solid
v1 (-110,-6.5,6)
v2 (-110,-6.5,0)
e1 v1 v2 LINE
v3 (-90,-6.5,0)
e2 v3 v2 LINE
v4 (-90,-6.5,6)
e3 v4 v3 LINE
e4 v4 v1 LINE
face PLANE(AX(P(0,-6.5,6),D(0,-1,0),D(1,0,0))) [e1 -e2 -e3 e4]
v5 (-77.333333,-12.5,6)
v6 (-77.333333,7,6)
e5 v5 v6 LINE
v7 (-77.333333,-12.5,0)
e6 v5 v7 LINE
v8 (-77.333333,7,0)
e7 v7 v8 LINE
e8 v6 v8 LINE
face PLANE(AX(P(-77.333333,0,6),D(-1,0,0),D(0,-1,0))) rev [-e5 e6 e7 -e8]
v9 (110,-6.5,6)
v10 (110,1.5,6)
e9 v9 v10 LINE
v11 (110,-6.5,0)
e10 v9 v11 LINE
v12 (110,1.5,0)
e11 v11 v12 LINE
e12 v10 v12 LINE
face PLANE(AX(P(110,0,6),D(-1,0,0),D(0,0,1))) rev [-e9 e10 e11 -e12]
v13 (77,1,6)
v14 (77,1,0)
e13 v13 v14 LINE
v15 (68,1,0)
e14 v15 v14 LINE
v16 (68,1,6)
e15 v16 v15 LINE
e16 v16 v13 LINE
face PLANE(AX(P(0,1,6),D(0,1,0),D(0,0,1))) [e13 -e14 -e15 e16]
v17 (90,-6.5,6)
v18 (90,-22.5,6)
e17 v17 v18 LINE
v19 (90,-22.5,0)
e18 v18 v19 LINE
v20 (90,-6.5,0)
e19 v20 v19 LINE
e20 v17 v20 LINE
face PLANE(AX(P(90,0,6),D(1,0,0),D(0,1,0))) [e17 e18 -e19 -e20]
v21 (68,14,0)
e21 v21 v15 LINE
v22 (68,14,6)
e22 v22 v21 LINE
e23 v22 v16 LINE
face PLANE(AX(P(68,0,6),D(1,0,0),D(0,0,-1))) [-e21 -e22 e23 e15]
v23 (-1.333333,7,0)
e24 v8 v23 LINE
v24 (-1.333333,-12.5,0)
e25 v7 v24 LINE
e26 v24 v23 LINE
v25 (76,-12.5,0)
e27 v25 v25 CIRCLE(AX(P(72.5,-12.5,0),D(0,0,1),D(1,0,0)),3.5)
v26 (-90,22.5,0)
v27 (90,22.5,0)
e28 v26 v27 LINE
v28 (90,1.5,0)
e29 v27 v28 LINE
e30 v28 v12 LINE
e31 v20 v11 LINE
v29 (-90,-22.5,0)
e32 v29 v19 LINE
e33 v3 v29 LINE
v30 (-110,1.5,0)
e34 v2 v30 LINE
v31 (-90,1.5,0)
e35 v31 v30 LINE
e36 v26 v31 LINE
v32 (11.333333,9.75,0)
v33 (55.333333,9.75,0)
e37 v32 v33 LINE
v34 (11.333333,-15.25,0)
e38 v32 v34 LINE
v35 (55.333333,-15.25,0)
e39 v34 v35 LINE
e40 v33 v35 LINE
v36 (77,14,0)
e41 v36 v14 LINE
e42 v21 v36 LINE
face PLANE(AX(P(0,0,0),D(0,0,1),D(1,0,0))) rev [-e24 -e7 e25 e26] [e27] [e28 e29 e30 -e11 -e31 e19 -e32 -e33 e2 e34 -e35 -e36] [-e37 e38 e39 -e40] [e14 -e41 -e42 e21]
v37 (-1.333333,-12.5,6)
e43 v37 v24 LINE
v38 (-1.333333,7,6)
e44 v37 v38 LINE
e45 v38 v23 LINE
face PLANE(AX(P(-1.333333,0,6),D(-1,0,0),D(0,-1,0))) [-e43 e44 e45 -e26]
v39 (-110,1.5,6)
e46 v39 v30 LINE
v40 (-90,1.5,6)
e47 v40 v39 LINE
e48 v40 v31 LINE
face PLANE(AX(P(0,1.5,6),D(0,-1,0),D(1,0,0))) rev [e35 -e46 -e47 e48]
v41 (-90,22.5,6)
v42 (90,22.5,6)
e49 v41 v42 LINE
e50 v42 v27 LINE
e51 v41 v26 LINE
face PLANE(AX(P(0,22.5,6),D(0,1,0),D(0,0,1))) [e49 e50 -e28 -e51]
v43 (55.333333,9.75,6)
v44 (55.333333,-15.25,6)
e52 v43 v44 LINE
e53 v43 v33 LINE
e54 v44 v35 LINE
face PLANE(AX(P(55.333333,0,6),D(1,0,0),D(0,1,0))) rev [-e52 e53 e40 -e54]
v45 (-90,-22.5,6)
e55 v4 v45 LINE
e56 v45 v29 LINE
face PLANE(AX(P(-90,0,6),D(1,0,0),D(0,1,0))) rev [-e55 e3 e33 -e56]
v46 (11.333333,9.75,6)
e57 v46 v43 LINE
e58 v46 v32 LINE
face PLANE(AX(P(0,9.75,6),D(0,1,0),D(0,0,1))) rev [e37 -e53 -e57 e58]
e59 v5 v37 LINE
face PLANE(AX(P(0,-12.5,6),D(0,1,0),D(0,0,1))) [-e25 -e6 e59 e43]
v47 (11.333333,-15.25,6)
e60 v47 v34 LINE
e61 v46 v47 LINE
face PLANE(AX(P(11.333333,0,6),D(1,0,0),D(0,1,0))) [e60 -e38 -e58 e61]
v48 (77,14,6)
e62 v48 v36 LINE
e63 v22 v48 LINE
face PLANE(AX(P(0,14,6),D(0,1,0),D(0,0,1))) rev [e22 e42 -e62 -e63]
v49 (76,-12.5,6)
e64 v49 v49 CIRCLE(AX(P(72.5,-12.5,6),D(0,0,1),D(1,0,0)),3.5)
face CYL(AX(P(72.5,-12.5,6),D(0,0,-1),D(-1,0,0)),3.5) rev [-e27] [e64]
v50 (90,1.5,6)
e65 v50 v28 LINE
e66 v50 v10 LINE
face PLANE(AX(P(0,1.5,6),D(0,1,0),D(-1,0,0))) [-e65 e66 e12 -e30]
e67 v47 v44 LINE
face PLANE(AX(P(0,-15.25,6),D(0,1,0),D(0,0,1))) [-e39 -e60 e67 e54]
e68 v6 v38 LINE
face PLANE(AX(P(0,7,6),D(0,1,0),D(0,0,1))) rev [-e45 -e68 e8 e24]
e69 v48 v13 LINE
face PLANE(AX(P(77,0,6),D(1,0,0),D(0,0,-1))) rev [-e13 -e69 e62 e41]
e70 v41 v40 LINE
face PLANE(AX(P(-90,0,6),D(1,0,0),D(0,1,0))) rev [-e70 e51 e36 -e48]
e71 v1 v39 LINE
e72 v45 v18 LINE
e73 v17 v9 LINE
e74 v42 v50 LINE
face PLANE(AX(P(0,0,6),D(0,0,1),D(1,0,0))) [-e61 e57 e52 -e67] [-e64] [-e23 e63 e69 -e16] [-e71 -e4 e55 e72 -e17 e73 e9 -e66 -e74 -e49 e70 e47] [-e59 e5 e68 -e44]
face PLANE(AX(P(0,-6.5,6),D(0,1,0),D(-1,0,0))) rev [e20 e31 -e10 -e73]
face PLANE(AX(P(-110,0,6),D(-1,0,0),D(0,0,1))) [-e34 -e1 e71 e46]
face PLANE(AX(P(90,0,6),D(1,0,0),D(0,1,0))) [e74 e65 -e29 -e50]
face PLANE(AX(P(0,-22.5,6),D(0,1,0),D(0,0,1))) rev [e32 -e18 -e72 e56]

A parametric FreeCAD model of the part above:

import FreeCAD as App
import Part
import Sketcher

V = App.Vector
Q = App.Units.Quantity


def add_polygon(sketch, points):
    """Adds a closed chain of lines whose ends are joined by coincident constraints."""
    first, n = sketch.GeometryCount, len(points)
    for a, b in zip(points, points[1:] + points[:1]):
        sketch.addGeometry(Part.LineSegment(App.Vector(*a, 0), App.Vector(*b, 0)), False)
    for i in range(n):
        sketch.addConstraint(Sketcher.Constraint("Coincident", first + i, 2, first + (i + 1) % n, 1))

doc = App.newDocument("Part")
params = doc.addObject("Spreadsheet::Sheet", "Params")
for row, (alias, value) in enumerate([
    ("sketch1_diameter", "7 mm"),
    ("sketch1_width", "180 mm"),
    ("sketch1_width2", "20 mm"),
    ("sketch1_width3", "76 mm"),
    ("sketch1_width4", "44 mm"),
    ("pad1_length", "6 mm"),
], start=1):
    params.set(f"A{row}", alias)
    params.set(f"B{row}", "=" + value)
    params.setAlias(f"B{row}", alias)

body = doc.addObject("PartDesign::Body", "Body")

sketch1 = body.newObject("Sketcher::SketchObject", "Sketch")
sketch1.AttachmentSupport = (doc.getObject("XY_Plane"), [""])
sketch1.MapMode = "FlatFace"
add_polygon(sketch1, [(-90, -6.5), (-90, -22.5), (90, -22.5), (90, -6.5), (110, -6.5), (110, 1.5), (90, 1.5), (90, 22.5), (-90, 22.5), (-90, 1.5), (-110, 1.5), (-110, -6.5)])
add_polygon(sketch1, [(-1.3, -12.5), (-77.3, -12.5), (-77.3, 7), (-1.3, 7)])
sketch1.addGeometry(Part.Circle(V(72.5, -12.5, 0), V(0, 0, 1), 3.5), False)
add_polygon(sketch1, [(55.3, -15.2), (11.3, -15.2), (11.3, 9.8), (55.3, 9.8)])
add_polygon(sketch1, [(77, 1), (68, 1), (68, 14), (77, 14)])
sketch1.addConstraint(Sketcher.Constraint("Vertical", 0))
sketch1.addConstraint(Sketcher.Constraint("Horizontal", 1))
sketch1.addConstraint(Sketcher.Constraint("Vertical", 2))
sketch1.addConstraint(Sketcher.Constraint("Horizontal", 3))
sketch1.addConstraint(Sketcher.Constraint("Vertical", 4))
sketch1.addConstraint(Sketcher.Constraint("Horizontal", 5))
sketch1.addConstraint(Sketcher.Constraint("Vertical", 6))
sketch1.addConstraint(Sketcher.Constraint("Horizontal", 7))
sketch1.addConstraint(Sketcher.Constraint("Vertical", 8))
sketch1.addConstraint(Sketcher.Constraint("Horizontal", 9))
sketch1.addConstraint(Sketcher.Constraint("Vertical", 10))
sketch1.addConstraint(Sketcher.Constraint("Horizontal", 11))
sketch1.addConstraint(Sketcher.Constraint("Horizontal", 12))
sketch1.addConstraint(Sketcher.Constraint("Vertical", 13))
sketch1.addConstraint(Sketcher.Constraint("Horizontal", 14))
sketch1.addConstraint(Sketcher.Constraint("Vertical", 15))
sketch1.addConstraint(Sketcher.Constraint("Horizontal", 17))
sketch1.addConstraint(Sketcher.Constraint("Vertical", 18))
sketch1.addConstraint(Sketcher.Constraint("Horizontal", 19))
sketch1.addConstraint(Sketcher.Constraint("Vertical", 20))
sketch1.addConstraint(Sketcher.Constraint("Horizontal", 21))
sketch1.addConstraint(Sketcher.Constraint("Vertical", 22))
sketch1.addConstraint(Sketcher.Constraint("Horizontal", 23))
sketch1.addConstraint(Sketcher.Constraint("Vertical", 24))
sketch1.addConstraint(Sketcher.Constraint("Symmetric", 0, 2, 6, 2, -1, 1))
sketch1.addConstraint(Sketcher.Constraint("Symmetric", 5, 2, 8, 2, -2))
sketch1.addConstraint(Sketcher.Constraint("Symmetric", 3, 2, 10, 2, -2))
sketch1.addConstraint(Sketcher.Constraint("Horizontal", 16, 3, 12, 2))
sketch1.addConstraint(Sketcher.Constraint("Vertical", 2, 2, 5, 2))
sketch1.addConstraint(Sketcher.Constraint("Diameter", 16, Q("7 mm")))
sketch1.addConstraint(Sketcher.Constraint("DistanceX", 1, 1, 1, 2, Q("180 mm")))
sketch1.addConstraint(Sketcher.Constraint("DistanceX", 3, 1, 3, 2, Q("20 mm")))
sketch1.addConstraint(Sketcher.Constraint("DistanceX", 12, 2, 12, 1, Q("76 mm")))
sketch1.addConstraint(Sketcher.Constraint("DistanceX", 17, 2, 17, 1, Q("44 mm")))
sketch1.addConstraint(Sketcher.Constraint("DistanceX", 21, 2, 21, 1, Q("9 mm")))
sketch1.addConstraint(Sketcher.Constraint("DistanceY", 0, 2, 0, 1, Q("16 mm")))
sketch1.addConstraint(Sketcher.Constraint("DistanceY", 4, 1, 4, 2, Q("8 mm")))
sketch1.addConstraint(Sketcher.Constraint("DistanceY", 6, 1, 6, 2, Q("21 mm")))
sketch1.addConstraint(Sketcher.Constraint("DistanceY", 18, 1, 18, 2, Q("25 mm")))
sketch1.addConstraint(Sketcher.Constraint("DistanceY", 22, 1, 22, 2, Q("13 mm")))
sketch1.addConstraint(Sketcher.Constraint("DistanceY", 13, 1, 13, 2, Q("19.5 mm")))
sketch1.addConstraint(Sketcher.Constraint("DistanceY", -1, 1, 13, 2, Q("7 mm")))
sketch1.addConstraint(Sketcher.Constraint("DistanceX", -1, 1, 21, 2, Q("68 mm")))
sketch1.addConstraint(Sketcher.Constraint("DistanceY", -1, 1, 21, 2, Q("1 mm")))
sketch1.addConstraint(Sketcher.Constraint("DistanceX", -1, 1, 16, 3, Q("72.5 mm")))
sketch1.addConstraint(Sketcher.Constraint("DistanceY", 17, 2, -1, 1, Q("15.25 mm")))
sketch1.addConstraint(Sketcher.Constraint("DistanceX", 12, 2, -1, 1, Q("77.333333 mm")))
sketch1.addConstraint(Sketcher.Constraint("DistanceX", -1, 1, 17, 2, Q("11.333333 mm")))
sketch1.setExpression("Constraints[53]", "Params.sketch1_diameter")
sketch1.setExpression("Constraints[54]", "Params.sketch1_width")
sketch1.setExpression("Constraints[55]", "Params.sketch1_width2")
sketch1.setExpression("Constraints[56]", "Params.sketch1_width3")
sketch1.setExpression("Constraints[57]", "Params.sketch1_width4")
pad1 = body.newObject("PartDesign::Pad", "Pad")
pad1.Profile = sketch1
pad1.setExpression("Length", "Params.pad1_length")

doc.recompute()
